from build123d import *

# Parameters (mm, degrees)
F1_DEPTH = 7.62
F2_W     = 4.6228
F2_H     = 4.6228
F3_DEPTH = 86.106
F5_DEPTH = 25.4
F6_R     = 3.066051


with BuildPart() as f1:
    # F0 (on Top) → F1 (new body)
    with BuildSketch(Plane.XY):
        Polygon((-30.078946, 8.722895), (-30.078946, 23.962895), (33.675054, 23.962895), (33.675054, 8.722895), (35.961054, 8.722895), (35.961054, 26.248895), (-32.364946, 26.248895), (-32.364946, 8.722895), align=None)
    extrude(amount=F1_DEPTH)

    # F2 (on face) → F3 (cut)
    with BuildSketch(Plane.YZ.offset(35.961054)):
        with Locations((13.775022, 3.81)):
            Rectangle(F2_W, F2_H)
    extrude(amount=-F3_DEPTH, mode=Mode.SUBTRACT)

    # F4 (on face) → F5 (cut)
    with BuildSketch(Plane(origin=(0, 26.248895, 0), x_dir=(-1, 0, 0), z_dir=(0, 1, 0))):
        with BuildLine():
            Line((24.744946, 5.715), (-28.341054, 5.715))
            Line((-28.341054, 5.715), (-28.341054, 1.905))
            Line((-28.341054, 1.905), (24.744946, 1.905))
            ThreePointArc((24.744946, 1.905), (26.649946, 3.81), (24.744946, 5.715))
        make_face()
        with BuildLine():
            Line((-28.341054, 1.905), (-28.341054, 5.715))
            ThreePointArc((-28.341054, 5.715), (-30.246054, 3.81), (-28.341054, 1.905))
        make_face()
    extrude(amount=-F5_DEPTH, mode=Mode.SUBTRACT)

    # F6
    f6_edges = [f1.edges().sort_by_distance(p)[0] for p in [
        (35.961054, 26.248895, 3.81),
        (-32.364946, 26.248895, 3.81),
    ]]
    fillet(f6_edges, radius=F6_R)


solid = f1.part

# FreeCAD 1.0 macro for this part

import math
import FreeCAD as App
import Part
import Sketcher

V = App.Vector
Q = App.Units.Quantity


def edges_at(feature, points):
    """Names of the edges that pass closest to the given points."""
    edges = feature.Shape.Edges
    near = lambda p: min(range(len(edges)), key=lambda i: edges[i].distToShape(Part.Vertex(*p))[0])
    return sorted({f"Edge{near(p) + 1}" for p in points})

doc = App.newDocument("Part")
params = doc.addObject("Spreadsheet::Sheet", "Params")
for row, (alias, value) in enumerate([
    ("sketch1_height", "0.6 in"),
    ("sketch1_width", "2.51 in"),
    ("sketch1_width2", "0.09 in"),
    ("sketch1_height2", "0.69 in"),
    ("pad1_length", "0.3 in"),
    ("sketch2_width", "0.182 in"),
    ("pocket1_length", "3.39 in"),
    ("sketch3_radius", "0.075 in"),
    ("sketch3_width", "2.09 in"),
    ("pocket2_length", "1 in"),
    ("fillet_radius", "3.066051 mm"),
], start=1):
    params.set(f"A{row}", alias)
    params.set(f"B{row}", "=" + value)
    params.setAlias(f"B{row}", alias)

body = doc.addObject("PartDesign::Body", "Body")

sketch1 = doc.addObject("Sketcher::SketchObject", "Sketch")
body.addObject(sketch1)
sketch1.AttachmentSupport = (doc.XY_Plane, [""])
sketch1.MapMode = "FlatFace"
sketch1.addGeometry([
    Part.LineSegment(V(-30.1, 8.7, 0), V(-30.1, 24, 0)),
    Part.LineSegment(V(-30.1, 24, 0), V(33.7, 24, 0)),
    Part.LineSegment(V(33.7, 24, 0), V(33.7, 8.7, 0)),
    Part.LineSegment(V(33.7, 8.7, 0), V(36, 8.7, 0)),
    Part.LineSegment(V(36, 8.7, 0), V(36, 26.2, 0)),
    Part.LineSegment(V(36, 26.2, 0), V(-32.4, 26.2, 0)),
    Part.LineSegment(V(-32.4, 26.2, 0), V(-32.4, 8.7, 0)),
    Part.LineSegment(V(-32.4, 8.7, 0), V(-30.1, 8.7, 0)),
], False)
sketch1.addConstraint([
    Sketcher.Constraint("Coincident", 0, 2, 1, 1),
    Sketcher.Constraint("Coincident", 1, 2, 2, 1),
    Sketcher.Constraint("Coincident", 2, 2, 3, 1),
    Sketcher.Constraint("Coincident", 3, 2, 4, 1),
    Sketcher.Constraint("Coincident", 4, 2, 5, 1),
    Sketcher.Constraint("Coincident", 5, 2, 6, 1),
    Sketcher.Constraint("Coincident", 6, 2, 7, 1),
    Sketcher.Constraint("Coincident", 7, 2, 0, 1),
    Sketcher.Constraint("Vertical", 0),
    Sketcher.Constraint("Horizontal", 1),
    Sketcher.Constraint("Vertical", 2),
    Sketcher.Constraint("Horizontal", 3),
    Sketcher.Constraint("Vertical", 4),
    Sketcher.Constraint("Horizontal", 5),
    Sketcher.Constraint("Vertical", 6),
    Sketcher.Constraint("Horizontal", 7),
    Sketcher.Constraint("Horizontal", 3, 2, 6, 2),
    Sketcher.Constraint("Equal", 3, 7),
    Sketcher.Constraint("DistanceY", 0, 1, 0, 2, Q("0.6 in")),
    Sketcher.Constraint("DistanceX", 1, 1, 1, 2, Q("2.51 in")),
    Sketcher.Constraint("DistanceX", 3, 1, 3, 2, Q("0.09 in")),
    Sketcher.Constraint("DistanceY", 4, 1, 4, 2, Q("0.69 in")),
    Sketcher.Constraint("DistanceX", 0, 2, -1, 1, 30.078946),
    Sketcher.Constraint("DistanceY", -1, 1, 0, 2, 23.962895),
])
sketch1.setExpression("Constraints[18]", "Params.sketch1_height")
sketch1.setExpression("Constraints[19]", "Params.sketch1_width")
sketch1.setExpression("Constraints[20]", "Params.sketch1_width2")
sketch1.setExpression("Constraints[21]", "Params.sketch1_height2")
pad1 = doc.addObject("PartDesign::Pad", "Pad")
body.addObject(pad1)
pad1.Profile = sketch1
pad1.setExpression("Length", "Params.pad1_length")

sketch2 = doc.addObject("Sketcher::SketchObject", "Sketch001")
body.addObject(sketch2)
sketch2.AttachmentSupport = (doc.YZ_Plane, [""])
sketch2.MapMode = "FlatFace"
sketch2.AttachmentOffset = App.Placement(V(0, 0, 35.961054), App.Rotation())
sketch2.addGeometry([
    Part.LineSegment(V(11.5, 6.1, 0), V(11.5, 1.5, 0)),
    Part.LineSegment(V(11.5, 1.5, 0), V(16.1, 1.5, 0)),
    Part.LineSegment(V(16.1, 1.5, 0), V(16.1, 6.1, 0)),
    Part.LineSegment(V(16.1, 6.1, 0), V(11.5, 6.1, 0)),
], False)
sketch2.addConstraint([
    Sketcher.Constraint("Coincident", 0, 2, 1, 1),
    Sketcher.Constraint("Coincident", 1, 2, 2, 1),
    Sketcher.Constraint("Coincident", 2, 2, 3, 1),
    Sketcher.Constraint("Coincident", 3, 2, 0, 1),
    Sketcher.Constraint("Vertical", 0),
    Sketcher.Constraint("Horizontal", 1),
    Sketcher.Constraint("Vertical", 2),
    Sketcher.Constraint("Horizontal", 3),
    Sketcher.Constraint("Equal", 3, 0),
    Sketcher.Constraint("DistanceX", 1, 1, 1, 2, Q("0.182 in")),
    Sketcher.Constraint("DistanceY", -1, 1, 0, 2, Q("0.059 in")),
    Sketcher.Constraint("DistanceX", -1, 1, 1, 2, 16.086422),
])
sketch2.setExpression("Constraints[9]", "Params.sketch2_width")
pocket1 = doc.addObject("PartDesign::Pocket", "Pocket")
body.addObject(pocket1)
pocket1.Profile = sketch2
pocket1.setExpression("Length", "Params.pocket1_length")

sketch3 = doc.addObject("Sketcher::SketchObject", "Sketch002")
body.addObject(sketch3)
sketch3.AttachmentSupport = (doc.XZ_Plane, [""])
sketch3.MapMode = "FlatFace"
sketch3.AttachmentOffset = App.Placement(V(0, 0, -26.248895), App.Rotation())
sketch3.addGeometry([
    Part.LineSegment(V(-24.7, 5.7, 0), V(28.3, 5.7, 0)),
    Part.ArcOfCircle(Part.Circle(V(28.3, 3.8, 0), V(0, 0, 1), 1.9), math.radians(-90), math.radians(90)),
    Part.LineSegment(V(28.3, 1.9, 0), V(-24.7, 1.9, 0)),
    Part.ArcOfCircle(Part.Circle(V(-24.7, 3.8, 0), V(0, 0, 1), 1.9), math.radians(90), math.radians(270)),
], False)
sketch3.addConstraint([
    Sketcher.Constraint("Tangent", 0, 2, 1, 2),
    Sketcher.Constraint("Tangent", 1, 1, 2, 1),
    Sketcher.Constraint("Tangent", 2, 2, 3, 2),
    Sketcher.Constraint("Tangent", 3, 1, 0, 1),
    Sketcher.Constraint("Horizontal", 0),
    Sketcher.Constraint("Horizontal", 2),
    Sketcher.Constraint("Radius", 1, Q("0.075 in")),
    Sketcher.Constraint("DistanceX", 0, 1, 0, 2, Q("2.09 in")),
    Sketcher.Constraint("DistanceY", -1, 1, 1, 3, Q("0.15 in")),
    Sketcher.Constraint("DistanceX", -1, 1, 1, 3, 28.341054),
])
sketch3.setExpression("Constraints[6]", "Params.sketch3_radius")
sketch3.setExpression("Constraints[7]", "Params.sketch3_width")
pocket2 = doc.addObject("PartDesign::Pocket", "Pocket001")
body.addObject(pocket2)
pocket2.Profile = sketch3
pocket2.setExpression("Length", "Params.pocket2_length")
pocket2.Reversed = True
doc.recompute()

fillet = doc.addObject("PartDesign::Fillet", "Fillet")
body.addObject(fillet)
fillet.Base = (pocket2, edges_at(pocket2, [(35.961, 26.249, 3.81), (-32.365, 26.249, 3.81)]))
fillet.setExpression("Radius", "Params.fillet_radius")

doc.recompute()
